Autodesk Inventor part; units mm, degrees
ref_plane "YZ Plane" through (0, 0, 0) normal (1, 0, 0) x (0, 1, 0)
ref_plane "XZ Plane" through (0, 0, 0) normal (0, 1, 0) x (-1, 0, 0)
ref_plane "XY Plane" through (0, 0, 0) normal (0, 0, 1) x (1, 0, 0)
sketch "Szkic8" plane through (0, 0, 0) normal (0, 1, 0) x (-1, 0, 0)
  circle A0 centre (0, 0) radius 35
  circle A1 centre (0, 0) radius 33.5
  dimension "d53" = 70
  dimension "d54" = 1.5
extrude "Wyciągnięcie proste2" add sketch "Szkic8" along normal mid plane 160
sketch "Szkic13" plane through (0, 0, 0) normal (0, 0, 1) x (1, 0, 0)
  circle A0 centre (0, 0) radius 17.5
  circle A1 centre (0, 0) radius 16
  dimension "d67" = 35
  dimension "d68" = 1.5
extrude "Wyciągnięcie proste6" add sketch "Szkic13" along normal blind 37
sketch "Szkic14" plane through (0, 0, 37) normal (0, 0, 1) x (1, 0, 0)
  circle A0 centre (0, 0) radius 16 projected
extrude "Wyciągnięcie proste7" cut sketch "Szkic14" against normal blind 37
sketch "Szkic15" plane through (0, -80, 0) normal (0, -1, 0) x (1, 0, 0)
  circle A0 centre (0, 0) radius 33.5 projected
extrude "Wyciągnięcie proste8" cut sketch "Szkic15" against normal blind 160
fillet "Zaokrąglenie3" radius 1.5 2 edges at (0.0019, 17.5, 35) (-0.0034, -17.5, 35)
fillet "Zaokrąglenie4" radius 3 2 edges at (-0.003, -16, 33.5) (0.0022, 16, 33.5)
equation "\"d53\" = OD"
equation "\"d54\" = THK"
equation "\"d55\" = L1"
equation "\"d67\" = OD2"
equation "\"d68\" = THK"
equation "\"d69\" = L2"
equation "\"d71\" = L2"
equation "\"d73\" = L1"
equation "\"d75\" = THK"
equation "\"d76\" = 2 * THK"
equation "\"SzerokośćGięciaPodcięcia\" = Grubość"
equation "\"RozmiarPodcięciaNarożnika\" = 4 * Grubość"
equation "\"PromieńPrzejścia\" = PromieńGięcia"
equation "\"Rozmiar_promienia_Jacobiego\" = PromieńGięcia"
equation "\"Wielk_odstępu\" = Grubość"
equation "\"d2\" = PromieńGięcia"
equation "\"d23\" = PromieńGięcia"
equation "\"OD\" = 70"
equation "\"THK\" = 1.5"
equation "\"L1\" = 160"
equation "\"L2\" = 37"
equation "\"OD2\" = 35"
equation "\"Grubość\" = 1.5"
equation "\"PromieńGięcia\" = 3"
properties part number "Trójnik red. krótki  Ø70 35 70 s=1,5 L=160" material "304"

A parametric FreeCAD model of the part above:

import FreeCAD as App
import Part
import Sketcher

V = App.Vector


def edges_at(feature, points):
    """Names of the edges that pass closest to the given points."""
    edges = feature.Shape.Edges
    near = lambda p: min(range(len(edges)), key=lambda i: edges[i].distToShape(Part.Vertex(*p))[0])
    return sorted({f"Edge{near(p) + 1}" for p in points})

doc = App.newDocument("Part")
body = doc.addObject("PartDesign::Body", "Body")

# Sketch on XZ plane
sketch1 = doc.addObject("Sketcher::SketchObject", "Sketch")
body.addObject(sketch1)
sketch1.AttachmentSupport = (doc.XZ_Plane, [""])
sketch1.MapMode = "FlatFace"
sketch1.addGeometry([
    Part.Circle(V(0, 0, 0), V(0, 0, 1), 35),
    Part.Circle(V(0, 0, 0), V(0, 0, 1), 34),
], False)
sketch1.addConstraint([
    Sketcher.Constraint("Coincident", 0, 3, -1, 1),
    Sketcher.Constraint("Coincident", 1, 3, -1, 1),
    Sketcher.Constraint("Diameter", 0, 70.0),
    Sketcher.Constraint("Diameter", 1, 67.0),
])
pad1 = doc.addObject("PartDesign::Pad", "Pad")
body.addObject(pad1)
pad1.Profile = sketch1
pad1.Length = 160
pad1.Midplane = True

# Sketch on XY plane
sketch2 = doc.addObject("Sketcher::SketchObject", "Sketch001")
body.addObject(sketch2)
sketch2.AttachmentSupport = (doc.XY_Plane, [""])
sketch2.MapMode = "FlatFace"
sketch2.addGeometry([
    Part.Circle(V(0, 0, 0), V(0, 0, 1), 18),
    Part.Circle(V(0, 0, 0), V(0, 0, 1), 16),
], False)
sketch2.addConstraint([
    Sketcher.Constraint("Coincident", 0, 3, -1, 1),
    Sketcher.Constraint("Coincident", 1, 3, -1, 1),
    Sketcher.Constraint("Diameter", 0, 35.0),
    Sketcher.Constraint("Diameter", 1, 32.0),
])
pad2 = doc.addObject("PartDesign::Pad", "Pad001")
body.addObject(pad2)
pad2.Profile = sketch2
pad2.Length = 37

# Sketch on XY plane
sketch3 = doc.addObject("Sketcher::SketchObject", "Sketch002")
body.addObject(sketch3)
sketch3.AttachmentSupport = (doc.XY_Plane, [""])
sketch3.MapMode = "FlatFace"
sketch3.AttachmentOffset = App.Placement(V(0, 0, 37), App.Rotation())
sketch3.addGeometry(Part.Circle(V(0, 0, 0), V(0, 0, 1), 16), False)
sketch3.addConstraint([
    Sketcher.Constraint("Coincident", 0, 3, -1, 1),
    Sketcher.Constraint("Diameter", 0, 32.0),
])
pocket1 = doc.addObject("PartDesign::Pocket", "Pocket")
body.addObject(pocket1)
pocket1.Profile = sketch3
pocket1.Length = 37

# Sketch on XZ plane
sketch4 = doc.addObject("Sketcher::SketchObject", "Sketch003")
body.addObject(sketch4)
sketch4.AttachmentSupport = (doc.XZ_Plane, [""])
sketch4.MapMode = "FlatFace"
sketch4.AttachmentOffset = App.Placement(V(0, 0, 80), App.Rotation())
sketch4.addGeometry(Part.Circle(V(0, 0, 0), V(0, 0, 1), 34), False)
sketch4.addConstraint([
    Sketcher.Constraint("Coincident", 0, 3, -1, 1),
    Sketcher.Constraint("Diameter", 0, 67.0),
])
pocket2 = doc.addObject("PartDesign::Pocket", "Pocket001")
body.addObject(pocket2)
pocket2.Profile = sketch4
pocket2.Length = 160
doc.recompute()

fillet = doc.addObject("PartDesign::Fillet", "Fillet")
body.addObject(fillet)
fillet.Base = (pocket2, edges_at(pocket2, [(0.002, 17.5, 35), (-0.003, -17.5, 35)]))
fillet.Radius = 1.5
doc.recompute()

fillet2 = doc.addObject("PartDesign::Fillet", "Fillet001")
body.addObject(fillet2)
fillet2.Base = (fillet, edges_at(fillet, [(-0.003, -16, 33.5), (0.002, 16, 33.5)]))
fillet2.Radius = 3

doc.recompute()
